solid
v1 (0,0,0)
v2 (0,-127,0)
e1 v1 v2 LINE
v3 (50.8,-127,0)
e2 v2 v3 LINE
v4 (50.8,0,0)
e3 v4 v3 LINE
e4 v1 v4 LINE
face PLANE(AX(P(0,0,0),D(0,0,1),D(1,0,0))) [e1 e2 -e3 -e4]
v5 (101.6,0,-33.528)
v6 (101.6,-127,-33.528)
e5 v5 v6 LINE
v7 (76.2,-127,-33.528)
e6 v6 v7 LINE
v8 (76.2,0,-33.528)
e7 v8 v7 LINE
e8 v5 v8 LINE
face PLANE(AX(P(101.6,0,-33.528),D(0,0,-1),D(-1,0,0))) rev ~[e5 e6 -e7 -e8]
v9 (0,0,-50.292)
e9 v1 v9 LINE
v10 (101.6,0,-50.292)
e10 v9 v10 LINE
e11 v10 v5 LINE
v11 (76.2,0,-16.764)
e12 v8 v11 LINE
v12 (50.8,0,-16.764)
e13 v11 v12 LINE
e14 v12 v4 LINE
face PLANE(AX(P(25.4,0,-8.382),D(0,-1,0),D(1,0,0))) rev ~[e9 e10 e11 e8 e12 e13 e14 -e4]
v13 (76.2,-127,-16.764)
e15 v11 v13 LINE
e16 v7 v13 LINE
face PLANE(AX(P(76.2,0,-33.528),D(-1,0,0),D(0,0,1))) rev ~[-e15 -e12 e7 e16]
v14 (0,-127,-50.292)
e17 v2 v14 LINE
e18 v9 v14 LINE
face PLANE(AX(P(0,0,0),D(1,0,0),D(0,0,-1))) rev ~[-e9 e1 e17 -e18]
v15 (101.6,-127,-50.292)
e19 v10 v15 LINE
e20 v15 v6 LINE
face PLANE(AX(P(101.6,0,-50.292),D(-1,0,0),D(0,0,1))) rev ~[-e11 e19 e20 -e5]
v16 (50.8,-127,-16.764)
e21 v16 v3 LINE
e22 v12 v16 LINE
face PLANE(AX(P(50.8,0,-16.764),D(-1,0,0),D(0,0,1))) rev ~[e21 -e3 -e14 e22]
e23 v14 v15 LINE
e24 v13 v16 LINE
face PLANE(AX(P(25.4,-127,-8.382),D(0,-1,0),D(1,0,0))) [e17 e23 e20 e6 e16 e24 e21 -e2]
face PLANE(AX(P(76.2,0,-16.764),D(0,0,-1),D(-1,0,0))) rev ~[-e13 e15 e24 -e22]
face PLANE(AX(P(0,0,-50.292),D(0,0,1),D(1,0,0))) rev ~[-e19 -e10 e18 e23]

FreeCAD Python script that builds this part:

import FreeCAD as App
import Part
import Sketcher
Q = App.Units.Quantity


def add_polygon(sketch, points):
    """Adds a closed chain of lines whose ends are joined by coincident constraints."""
    first, n = sketch.GeometryCount, len(points)
    for a, b in zip(points, points[1:] + points[:1]):
        sketch.addGeometry(Part.LineSegment(App.Vector(*a, 0), App.Vector(*b, 0)), False)
    for i in range(n):
        sketch.addConstraint(Sketcher.Constraint("Coincident", first + i, 2, first + (i + 1) % n, 1))

doc = App.newDocument("Part")
body = doc.addObject("PartDesign::Body", "Body")

sketch1 = doc.addObject("Sketcher::SketchObject", "Sketch")
body.addObject(sketch1)
sketch1.AttachmentSupport = (doc.XZ_Plane, [""])
sketch1.MapMode = "FlatFace"
add_polygon(sketch1, [(0, 0), (0, -50), (102, -50), (102, -34), (76, -34), (76, -17), (51, -17), (51, 0)])
sketch1.addConstraint(Sketcher.Constraint("Vertical", 0))
sketch1.addConstraint(Sketcher.Constraint("Horizontal", 1))
sketch1.addConstraint(Sketcher.Constraint("Vertical", 2))
sketch1.addConstraint(Sketcher.Constraint("Horizontal", 3))
sketch1.addConstraint(Sketcher.Constraint("Vertical", 4))
sketch1.addConstraint(Sketcher.Constraint("Horizontal", 5))
sketch1.addConstraint(Sketcher.Constraint("Vertical", 6))
sketch1.addConstraint(Sketcher.Constraint("Horizontal", 7))
sketch1.addConstraint(Sketcher.Constraint("Coincident", 7, 2, -1, 1))
sketch1.addConstraint(Sketcher.Constraint("Equal", 3, 5))
sketch1.addConstraint(Sketcher.Constraint("Equal", 2, 4))
sketch1.addConstraint(Sketcher.Constraint("Equal", 4, 6))
sketch1.addConstraint(Sketcher.Constraint("DistanceX", 1, 1, 1, 2, Q("4 in")))
sketch1.addConstraint(Sketcher.Constraint("DistanceX", 3, 2, 3, 1, Q("1 in")))
sketch1.addConstraint(Sketcher.Constraint("DistanceY", 0, 2, 0, 1, Q("1.98 in")))
pad1 = doc.addObject("PartDesign::Pad", "Pad")
body.addObject(pad1)
pad1.Profile = sketch1
pad1.Length = Q("5 in")

doc.recompute()
